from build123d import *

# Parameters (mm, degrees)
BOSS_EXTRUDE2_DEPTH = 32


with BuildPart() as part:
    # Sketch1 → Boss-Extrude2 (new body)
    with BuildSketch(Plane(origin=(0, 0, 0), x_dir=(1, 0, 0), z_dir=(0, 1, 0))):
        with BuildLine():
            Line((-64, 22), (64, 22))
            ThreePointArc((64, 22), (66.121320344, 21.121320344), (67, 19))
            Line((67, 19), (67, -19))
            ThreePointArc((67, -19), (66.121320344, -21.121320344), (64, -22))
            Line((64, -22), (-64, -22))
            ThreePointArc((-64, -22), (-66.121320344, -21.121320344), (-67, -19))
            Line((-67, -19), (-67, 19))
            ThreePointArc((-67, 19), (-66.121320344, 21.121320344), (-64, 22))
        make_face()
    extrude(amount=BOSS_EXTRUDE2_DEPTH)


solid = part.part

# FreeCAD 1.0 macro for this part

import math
import FreeCAD as App
import Part
import Sketcher

V = App.Vector
Q = App.Units.Quantity

doc = App.newDocument("Part")
body = doc.addObject("PartDesign::Body", "Body")

# Sketch on XZ plane
sketch1 = body.newObject("Sketcher::SketchObject", "Sketch")
sketch1.AttachmentSupport = (doc.getObject("XZ_Plane"), [""])
sketch1.MapMode = "FlatFace"
sketch1.addGeometry(Part.LineSegment(V(64, -22, 0), V(-64, -22, 0)), False)
sketch1.addGeometry(Part.ArcOfCircle(Part.Circle(V(-64, -19, 0), V(0, 0, 1), 3), math.radians(180), math.radians(270)), False)
sketch1.addGeometry(Part.LineSegment(V(-67, -19, 0), V(-67, 19, 0)), False)
sketch1.addGeometry(Part.ArcOfCircle(Part.Circle(V(-64, 19, 0), V(0, 0, 1), 3), math.radians(90), math.radians(180)), False)
sketch1.addGeometry(Part.LineSegment(V(-64, 22, 0), V(64, 22, 0)), False)
sketch1.addGeometry(Part.ArcOfCircle(Part.Circle(V(64, 19, 0), V(0, 0, 1), 3), math.radians(0), math.radians(90)), False)
sketch1.addGeometry(Part.LineSegment(V(67, 19, 0), V(67, -19, 0)), False)
sketch1.addGeometry(Part.ArcOfCircle(Part.Circle(V(64, -19, 0), V(0, 0, 1), 3), math.radians(-90), math.radians(0)), False)
sketch1.addConstraint(Sketcher.Constraint("Tangent", 0, 2, 1, 2))
sketch1.addConstraint(Sketcher.Constraint("Tangent", 1, 1, 2, 1))
sketch1.addConstraint(Sketcher.Constraint("Tangent", 2, 2, 3, 2))
sketch1.addConstraint(Sketcher.Constraint("Tangent", 3, 1, 4, 1))
sketch1.addConstraint(Sketcher.Constraint("Tangent", 4, 2, 5, 2))
sketch1.addConstraint(Sketcher.Constraint("Tangent", 5, 1, 6, 1))
sketch1.addConstraint(Sketcher.Constraint("Tangent", 6, 2, 7, 2))
sketch1.addConstraint(Sketcher.Constraint("Tangent", 7, 1, 0, 1))
sketch1.addConstraint(Sketcher.Constraint("Horizontal", 0))
sketch1.addConstraint(Sketcher.Constraint("Vertical", 2))
sketch1.addConstraint(Sketcher.Constraint("Horizontal", 4))
sketch1.addConstraint(Sketcher.Constraint("Vertical", 6))
sketch1.addConstraint(Sketcher.Constraint("Equal", 1, 3))
sketch1.addConstraint(Sketcher.Constraint("Equal", 3, 5))
sketch1.addConstraint(Sketcher.Constraint("Equal", 5, 7))
sketch1.addConstraint(Sketcher.Constraint("Symmetric", 1, 3, 5, 3, -1, 1))
sketch1.addConstraint(Sketcher.Constraint("Radius", 1, Q("3 mm")))
sketch1.addConstraint(Sketcher.Constraint("DistanceX", 0, 2, 0, 1, Q("128 mm")))
sketch1.addConstraint(Sketcher.Constraint("DistanceY", 2, 1, 2, 2, Q("38 mm")))
pad1 = body.newObject("PartDesign::Pad", "Pad")
pad1.Profile = sketch1
pad1.Length = 32
pad1.Reversed = True

doc.recompute()
